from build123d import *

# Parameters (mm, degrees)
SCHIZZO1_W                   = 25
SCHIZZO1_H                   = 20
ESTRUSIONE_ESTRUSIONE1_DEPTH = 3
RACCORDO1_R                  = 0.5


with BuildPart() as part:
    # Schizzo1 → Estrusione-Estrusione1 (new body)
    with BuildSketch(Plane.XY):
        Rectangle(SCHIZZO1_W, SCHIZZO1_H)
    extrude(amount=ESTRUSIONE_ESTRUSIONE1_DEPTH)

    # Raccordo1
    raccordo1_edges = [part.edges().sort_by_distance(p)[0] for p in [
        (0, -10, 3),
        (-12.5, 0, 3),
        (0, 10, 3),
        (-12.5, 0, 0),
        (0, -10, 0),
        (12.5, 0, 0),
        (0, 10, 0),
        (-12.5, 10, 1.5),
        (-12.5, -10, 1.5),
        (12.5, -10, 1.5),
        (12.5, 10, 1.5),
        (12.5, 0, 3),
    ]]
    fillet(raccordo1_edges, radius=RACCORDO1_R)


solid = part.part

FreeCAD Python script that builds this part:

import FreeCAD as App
import Part
import Sketcher
from FreeCAD import Vector
Q = App.Units.Quantity


def add_polygon(sketch, points):
    """Adds a closed chain of lines whose ends are joined by coincident constraints."""
    first, n = sketch.GeometryCount, len(points)
    for a, b in zip(points, points[1:] + points[:1]):
        sketch.addGeometry(Part.LineSegment(App.Vector(*a, 0), App.Vector(*b, 0)), False)
    for i in range(n):
        sketch.addConstraint(Sketcher.Constraint("Coincident", first + i, 2, first + (i + 1) % n, 1))

doc = App.newDocument("Part")
body = doc.addObject("PartDesign::Body", "Body")

sketch1 = body.newObject("Sketcher::SketchObject", "Sketch")
sketch1.AttachmentSupport = (doc.getObject("XY_Plane"), [""])
sketch1.MapMode = "FlatFace"
add_polygon(sketch1, [(-12, 10), (-12, -10), (12, -10), (12, 10)])
sketch1.addConstraint([
    Sketcher.Constraint("Vertical", 0),
    Sketcher.Constraint("Horizontal", 1),
    Sketcher.Constraint("Vertical", 2),
    Sketcher.Constraint("Horizontal", 3),
    Sketcher.Constraint("Symmetric", 0, 2, 2, 2, -1, 1),
    Sketcher.Constraint("DistanceX", 1, 1, 1, 2, Q("25 mm")),
    Sketcher.Constraint("DistanceY", 0, 2, 0, 1, Q("20 mm")),
])
pad1 = body.newObject("PartDesign::Pad", "Pad")
pad1.Profile = sketch1
pad1.Length = 3
doc.recompute()

fillet = body.newObject("PartDesign::Fillet", "Fillet")
fillet.Base = (pad1, ["Edge1"])
fillet.UseAllEdges = True
fillet.Radius = 0.5

doc.recompute()
